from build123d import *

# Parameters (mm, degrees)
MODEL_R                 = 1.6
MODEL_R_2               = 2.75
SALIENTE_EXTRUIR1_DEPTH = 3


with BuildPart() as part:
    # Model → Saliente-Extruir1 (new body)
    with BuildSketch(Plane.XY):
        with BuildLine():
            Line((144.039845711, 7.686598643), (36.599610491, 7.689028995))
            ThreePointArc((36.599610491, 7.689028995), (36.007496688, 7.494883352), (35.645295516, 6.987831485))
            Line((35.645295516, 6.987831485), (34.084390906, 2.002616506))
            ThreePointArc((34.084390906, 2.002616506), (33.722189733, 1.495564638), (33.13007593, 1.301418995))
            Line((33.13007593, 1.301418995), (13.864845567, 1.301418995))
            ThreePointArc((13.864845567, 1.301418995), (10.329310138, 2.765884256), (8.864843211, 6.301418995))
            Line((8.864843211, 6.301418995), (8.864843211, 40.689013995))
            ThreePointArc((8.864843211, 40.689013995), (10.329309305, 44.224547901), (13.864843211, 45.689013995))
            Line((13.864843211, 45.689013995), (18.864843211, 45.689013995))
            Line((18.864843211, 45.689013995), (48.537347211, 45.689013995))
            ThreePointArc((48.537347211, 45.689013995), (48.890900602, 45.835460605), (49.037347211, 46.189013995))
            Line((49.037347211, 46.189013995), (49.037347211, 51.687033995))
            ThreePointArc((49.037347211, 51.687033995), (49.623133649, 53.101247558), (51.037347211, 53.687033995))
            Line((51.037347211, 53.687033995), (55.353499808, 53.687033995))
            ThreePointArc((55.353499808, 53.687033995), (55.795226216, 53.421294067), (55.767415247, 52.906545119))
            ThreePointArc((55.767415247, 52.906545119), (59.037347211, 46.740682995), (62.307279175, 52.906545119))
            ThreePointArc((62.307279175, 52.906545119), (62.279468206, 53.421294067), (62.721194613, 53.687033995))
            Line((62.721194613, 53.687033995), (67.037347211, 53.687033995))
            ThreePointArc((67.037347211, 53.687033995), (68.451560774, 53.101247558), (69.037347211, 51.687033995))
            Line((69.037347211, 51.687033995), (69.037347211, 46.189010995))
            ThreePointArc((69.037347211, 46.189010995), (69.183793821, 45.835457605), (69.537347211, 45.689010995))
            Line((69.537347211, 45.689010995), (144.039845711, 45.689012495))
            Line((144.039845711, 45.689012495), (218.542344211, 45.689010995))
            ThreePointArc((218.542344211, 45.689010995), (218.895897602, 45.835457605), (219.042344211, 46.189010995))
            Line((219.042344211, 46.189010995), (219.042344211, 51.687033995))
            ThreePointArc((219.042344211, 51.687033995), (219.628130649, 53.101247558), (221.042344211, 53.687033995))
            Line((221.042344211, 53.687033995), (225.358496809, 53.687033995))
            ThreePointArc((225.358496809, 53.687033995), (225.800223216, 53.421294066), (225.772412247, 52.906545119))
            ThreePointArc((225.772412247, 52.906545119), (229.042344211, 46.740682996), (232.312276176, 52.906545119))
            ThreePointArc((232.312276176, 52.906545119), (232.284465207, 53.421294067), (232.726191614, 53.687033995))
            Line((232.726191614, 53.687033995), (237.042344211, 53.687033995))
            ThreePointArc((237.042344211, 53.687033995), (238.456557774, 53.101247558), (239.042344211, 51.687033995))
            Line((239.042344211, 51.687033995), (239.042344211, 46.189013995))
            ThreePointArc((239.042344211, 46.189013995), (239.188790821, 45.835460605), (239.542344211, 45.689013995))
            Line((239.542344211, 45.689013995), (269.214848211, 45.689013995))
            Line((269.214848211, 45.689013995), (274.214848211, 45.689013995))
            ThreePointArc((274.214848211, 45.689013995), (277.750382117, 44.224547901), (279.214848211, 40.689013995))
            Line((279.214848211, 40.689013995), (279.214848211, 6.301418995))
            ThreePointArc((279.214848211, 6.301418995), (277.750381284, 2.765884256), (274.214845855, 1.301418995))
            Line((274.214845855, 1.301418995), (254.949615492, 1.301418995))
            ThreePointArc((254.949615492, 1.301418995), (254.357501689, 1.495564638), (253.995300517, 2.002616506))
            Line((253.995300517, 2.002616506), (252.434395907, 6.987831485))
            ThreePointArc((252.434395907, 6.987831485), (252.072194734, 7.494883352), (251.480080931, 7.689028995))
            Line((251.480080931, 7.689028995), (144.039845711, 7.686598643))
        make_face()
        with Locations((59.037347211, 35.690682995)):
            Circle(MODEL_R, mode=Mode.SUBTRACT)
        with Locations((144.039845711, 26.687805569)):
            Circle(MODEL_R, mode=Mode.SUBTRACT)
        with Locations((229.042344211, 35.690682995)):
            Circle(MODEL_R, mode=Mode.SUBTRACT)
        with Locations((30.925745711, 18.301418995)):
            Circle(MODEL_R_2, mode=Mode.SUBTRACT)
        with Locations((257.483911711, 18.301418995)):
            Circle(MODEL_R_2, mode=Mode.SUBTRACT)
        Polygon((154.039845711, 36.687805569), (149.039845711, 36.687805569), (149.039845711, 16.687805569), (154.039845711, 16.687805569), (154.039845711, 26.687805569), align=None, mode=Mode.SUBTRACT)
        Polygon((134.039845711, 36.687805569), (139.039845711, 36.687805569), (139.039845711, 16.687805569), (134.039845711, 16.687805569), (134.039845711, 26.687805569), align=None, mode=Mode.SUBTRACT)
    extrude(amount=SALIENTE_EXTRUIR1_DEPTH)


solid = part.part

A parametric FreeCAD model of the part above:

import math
import FreeCAD as App
import Part
import Sketcher

V = App.Vector

doc = App.newDocument("Part")
body = doc.addObject("PartDesign::Body", "Body")

sketch1 = body.newObject("Sketcher::SketchObject", "Sketch")
sketch1.AttachmentSupport = (doc.getObject("XY_Plane"), [""])
sketch1.MapMode = "FlatFace"
sketch1.addGeometry(Part.LineSegment(V(36.59961, 7.689029, 0), V(144.039846, 7.686599, 0)), False)
sketch1.addGeometry(Part.LineSegment(V(144.039846, 7.686599, 0), V(251.480081, 7.689029, 0)), False)
sketch1.addGeometry(Part.ArcOfCircle(Part.Circle(V(251.480081, 6.689029, 0), V(0, 0, 1), 1), math.radians(17.385692), math.radians(90)), False)
sketch1.addGeometry(Part.LineSegment(V(252.434396, 6.987831, 0), V(253.995301, 2.002617, 0)), False)
sketch1.addGeometry(Part.ArcOfCircle(Part.Circle(V(254.949615, 2.301419, 0), V(0, 0, 1), 1), math.radians(-162.614308), math.radians(-90)), False)
sketch1.addGeometry(Part.LineSegment(V(254.949615, 1.301419, 0), V(274.214846, 1.301419, 0)), False)
sketch1.addGeometry(Part.ArcOfCircle(Part.Circle(V(274.214848, 6.301419, 0), V(0, 0, 1), 5), math.radians(-90.000027), math.radians(0)), False)
sketch1.addGeometry(Part.LineSegment(V(279.214848, 6.301419, 0), V(279.214848, 40.689014, 0)), False)
sketch1.addGeometry(Part.ArcOfCircle(Part.Circle(V(274.214848, 40.689014, 0), V(0, 0, 1), 5), math.radians(0), math.radians(90)), False)
sketch1.addGeometry(Part.LineSegment(V(274.214848, 45.689014, 0), V(239.542344, 45.689014, 0)), False)
sketch1.addGeometry(Part.ArcOfCircle(Part.Circle(V(239.542344, 46.189014, 0), V(0, 0, 1), 0.5), math.radians(-180), math.radians(-90)), False)
sketch1.addGeometry(Part.LineSegment(V(239.042344, 46.189014, 0), V(239.042344, 51.687034, 0)), False)
sketch1.addGeometry(Part.ArcOfCircle(Part.Circle(V(237.042344, 51.687034, 0), V(0, 0, 1), 2), math.radians(0), math.radians(90)), False)
sketch1.addGeometry(Part.LineSegment(V(237.042344, 53.687034, 0), V(232.726192, 53.687034, 0)), False)
sketch1.addGeometry(Part.ArcOfCircle(Part.Circle(V(232.726192, 53.187034, 0), V(0, 0, 1), 0.5), math.radians(90), math.radians(214.123443)), False)
sketch1.addGeometry(Part.ArcOfCircle(Part.Circle(V(229.042344, 50.690683, 0), V(0, 0, 1), 3.95), math.radians(145.876557), math.radians(394.123443)), False)
sketch1.addGeometry(Part.ArcOfCircle(Part.Circle(V(225.358497, 53.187034, 0), V(0, 0, 1), 0.5), math.radians(-34.123443), math.radians(90)), False)
sketch1.addGeometry(Part.LineSegment(V(225.358497, 53.687034, 0), V(221.042344, 53.687034, 0)), False)
sketch1.addGeometry(Part.ArcOfCircle(Part.Circle(V(221.042344, 51.687034, 0), V(0, 0, 1), 2), math.radians(90), math.radians(180)), False)
sketch1.addGeometry(Part.LineSegment(V(219.042344, 51.687034, 0), V(219.042344, 46.189011, 0)), False)
sketch1.addGeometry(Part.ArcOfCircle(Part.Circle(V(218.542344, 46.189011, 0), V(0, 0, 1), 0.5), math.radians(-90), math.radians(0)), False)
sketch1.addGeometry(Part.LineSegment(V(218.542344, 45.689011, 0), V(144.039846, 45.689012, 0)), False)
sketch1.addGeometry(Part.LineSegment(V(144.039846, 45.689012, 0), V(69.537347, 45.689011, 0)), False)
sketch1.addGeometry(Part.ArcOfCircle(Part.Circle(V(69.537347, 46.189011, 0), V(0, 0, 1), 0.5), math.radians(-180), math.radians(-90)), False)
sketch1.addGeometry(Part.LineSegment(V(69.037347, 46.189011, 0), V(69.037347, 51.687034, 0)), False)
sketch1.addGeometry(Part.ArcOfCircle(Part.Circle(V(67.037347, 51.687034, 0), V(0, 0, 1), 2), math.radians(0), math.radians(90)), False)
sketch1.addGeometry(Part.LineSegment(V(67.037347, 53.687034, 0), V(62.721195, 53.687034, 0)), False)
sketch1.addGeometry(Part.ArcOfCircle(Part.Circle(V(62.721195, 53.187034, 0), V(0, 0, 1), 0.5), math.radians(90), math.radians(214.123443)), False)
sketch1.addGeometry(Part.ArcOfCircle(Part.Circle(V(59.037347, 50.690683, 0), V(0, 0, 1), 3.95), math.radians(145.876557), math.radians(394.123443)), False)
sketch1.addGeometry(Part.ArcOfCircle(Part.Circle(V(55.3535, 53.187034, 0), V(0, 0, 1), 0.5), math.radians(-34.123443), math.radians(90)), False)
sketch1.addGeometry(Part.LineSegment(V(55.3535, 53.687034, 0), V(51.037347, 53.687034, 0)), False)
sketch1.addGeometry(Part.ArcOfCircle(Part.Circle(V(51.037347, 51.687034, 0), V(0, 0, 1), 2), math.radians(90), math.radians(180)), False)
sketch1.addGeometry(Part.LineSegment(V(49.037347, 51.687034, 0), V(49.037347, 46.189014, 0)), False)
sketch1.addGeometry(Part.ArcOfCircle(Part.Circle(V(48.537347, 46.189014, 0), V(0, 0, 1), 0.5), math.radians(-90), math.radians(0)), False)
sketch1.addGeometry(Part.LineSegment(V(48.537347, 45.689014, 0), V(13.864843, 45.689014, 0)), False)
sketch1.addGeometry(Part.ArcOfCircle(Part.Circle(V(13.864843, 40.689014, 0), V(0, 0, 1), 5), math.radians(90), math.radians(180)), False)
sketch1.addGeometry(Part.LineSegment(V(8.864843, 40.689014, 0), V(8.864843, 6.301419, 0)), False)
sketch1.addGeometry(Part.ArcOfCircle(Part.Circle(V(13.864843, 6.301419, 0), V(0, 0, 1), 5), math.radians(180), math.radians(270.000027)), False)
sketch1.addGeometry(Part.LineSegment(V(13.864846, 1.301419, 0), V(33.130076, 1.301419, 0)), False)
sketch1.addGeometry(Part.ArcOfCircle(Part.Circle(V(33.130076, 2.301419, 0), V(0, 0, 1), 1), math.radians(-90), math.radians(-17.385692)), False)
sketch1.addGeometry(Part.LineSegment(V(34.084391, 2.002617, 0), V(35.645296, 6.987831, 0)), False)
sketch1.addGeometry(Part.ArcOfCircle(Part.Circle(V(36.59961, 6.689029, 0), V(0, 0, 1), 1), math.radians(90), math.radians(162.614308)), False)
sketch1.addGeometry(Part.Circle(V(257.483912, 18.301419, 0), V(0, 0, 1), 2.75), False)
sketch1.addGeometry(Part.Circle(V(30.925746, 18.301419, 0), V(0, 0, 1), 2.75), False)
sketch1.addGeometry(Part.LineSegment(V(154.039846, 36.687806, 0), V(154.039846, 16.687806, 0)), False)
sketch1.addGeometry(Part.LineSegment(V(154.039846, 16.687806, 0), V(149.039846, 16.687806, 0)), False)
sketch1.addGeometry(Part.LineSegment(V(149.039846, 16.687806, 0), V(149.039846, 36.687806, 0)), False)
sketch1.addGeometry(Part.LineSegment(V(149.039846, 36.687806, 0), V(154.039846, 36.687806, 0)), False)
sketch1.addGeometry(Part.Circle(V(229.042344, 35.690683, 0), V(0, 0, 1), 1.6), False)
sketch1.addGeometry(Part.Circle(V(144.039846, 26.687806, 0), V(0, 0, 1), 1.6), False)
sketch1.addGeometry(Part.LineSegment(V(134.039846, 36.687806, 0), V(139.039846, 36.687806, 0)), False)
sketch1.addGeometry(Part.LineSegment(V(139.039846, 36.687806, 0), V(139.039846, 16.687806, 0)), False)
sketch1.addGeometry(Part.LineSegment(V(139.039846, 16.687806, 0), V(134.039846, 16.687806, 0)), False)
sketch1.addGeometry(Part.LineSegment(V(134.039846, 16.687806, 0), V(134.039846, 36.687806, 0)), False)
sketch1.addGeometry(Part.Circle(V(59.037347, 35.690683, 0), V(0, 0, 1), 1.6), False)
sketch1.addConstraint(Sketcher.Constraint("Coincident", 0, 2, 1, 1))
sketch1.addConstraint(Sketcher.Constraint("Coincident", 1, 2, 2, 2))
sketch1.addConstraint(Sketcher.Constraint("Tangent", 2, 1, 3, 1))
sketch1.addConstraint(Sketcher.Constraint("Tangent", 3, 2, 4, 1))
sketch1.addConstraint(Sketcher.Constraint("Tangent", 4, 2, 5, 1))
sketch1.addConstraint(Sketcher.Constraint("Tangent", 5, 2, 6, 1))
sketch1.addConstraint(Sketcher.Constraint("Tangent", 6, 2, 7, 1))
sketch1.addConstraint(Sketcher.Constraint("Tangent", 7, 2, 8, 1))
sketch1.addConstraint(Sketcher.Constraint("Tangent", 8, 2, 9, 1))
sketch1.addConstraint(Sketcher.Constraint("Tangent", 9, 2, 10, 2))
sketch1.addConstraint(Sketcher.Constraint("Tangent", 10, 1, 11, 1))
sketch1.addConstraint(Sketcher.Constraint("Tangent", 11, 2, 12, 1))
sketch1.addConstraint(Sketcher.Constraint("Tangent", 12, 2, 13, 1))
sketch1.addConstraint(Sketcher.Constraint("Tangent", 13, 2, 14, 1))
sketch1.addConstraint(Sketcher.Constraint("Tangent", 14, 2, 15, 2))
sketch1.addConstraint(Sketcher.Constraint("Tangent", 15, 1, 16, 1))
sketch1.addConstraint(Sketcher.Constraint("Tangent", 16, 2, 17, 1))
sketch1.addConstraint(Sketcher.Constraint("Tangent", 17, 2, 18, 1))
sketch1.addConstraint(Sketcher.Constraint("Tangent", 18, 2, 19, 1))
sketch1.addConstraint(Sketcher.Constraint("Tangent", 19, 2, 20, 2))
sketch1.addConstraint(Sketcher.Constraint("Tangent", 20, 1, 21, 1))
sketch1.addConstraint(Sketcher.Constraint("Coincident", 21, 2, 22, 1))
sketch1.addConstraint(Sketcher.Constraint("Tangent", 22, 2, 23, 2))
sketch1.addConstraint(Sketcher.Constraint("Tangent", 23, 1, 24, 1))
sketch1.addConstraint(Sketcher.Constraint("Tangent", 24, 2, 25, 1))
sketch1.addConstraint(Sketcher.Constraint("Tangent", 25, 2, 26, 1))
sketch1.addConstraint(Sketcher.Constraint("Tangent", 26, 2, 27, 1))
sketch1.addConstraint(Sketcher.Constraint("Tangent", 27, 2, 28, 2))
sketch1.addConstraint(Sketcher.Constraint("Tangent", 28, 1, 29, 1))
sketch1.addConstraint(Sketcher.Constraint("Tangent", 29, 2, 30, 1))
sketch1.addConstraint(Sketcher.Constraint("Tangent", 30, 2, 31, 1))
sketch1.addConstraint(Sketcher.Constraint("Tangent", 31, 2, 32, 1))
sketch1.addConstraint(Sketcher.Constraint("Tangent", 32, 2, 33, 2))
sketch1.addConstraint(Sketcher.Constraint("Tangent", 33, 1, 34, 1))
sketch1.addConstraint(Sketcher.Constraint("Tangent", 34, 2, 35, 1))
sketch1.addConstraint(Sketcher.Constraint("Tangent", 35, 2, 36, 1))
sketch1.addConstraint(Sketcher.Constraint("Tangent", 36, 2, 37, 1))
sketch1.addConstraint(Sketcher.Constraint("Tangent", 37, 2, 38, 1))
sketch1.addConstraint(Sketcher.Constraint("Tangent", 38, 2, 39, 1))
sketch1.addConstraint(Sketcher.Constraint("Tangent", 39, 2, 40, 1))
sketch1.addConstraint(Sketcher.Constraint("Tangent", 40, 2, 41, 2))
sketch1.addConstraint(Sketcher.Constraint("Coincident", 41, 1, 0, 1))
sketch1.addConstraint(Sketcher.Constraint("Coincident", 44, 2, 45, 1))
sketch1.addConstraint(Sketcher.Constraint("Coincident", 45, 2, 46, 1))
sketch1.addConstraint(Sketcher.Constraint("Coincident", 46, 2, 47, 1))
sketch1.addConstraint(Sketcher.Constraint("Coincident", 47, 2, 44, 1))
sketch1.addConstraint(Sketcher.Constraint("Coincident", 50, 2, 51, 1))
sketch1.addConstraint(Sketcher.Constraint("Coincident", 51, 2, 52, 1))
sketch1.addConstraint(Sketcher.Constraint("Coincident", 52, 2, 53, 1))
sketch1.addConstraint(Sketcher.Constraint("Coincident", 53, 2, 50, 1))
sketch1.addConstraint(Sketcher.Constraint("Horizontal", 5))
sketch1.addConstraint(Sketcher.Constraint("Vertical", 7))
sketch1.addConstraint(Sketcher.Constraint("Horizontal", 9))
sketch1.addConstraint(Sketcher.Constraint("Vertical", 11))
sketch1.addConstraint(Sketcher.Constraint("Horizontal", 13))
sketch1.addConstraint(Sketcher.Constraint("Horizontal", 17))
sketch1.addConstraint(Sketcher.Constraint("Vertical", 19))
sketch1.addConstraint(Sketcher.Constraint("Horizontal", 21))
sketch1.addConstraint(Sketcher.Constraint("Horizontal", 22))
sketch1.addConstraint(Sketcher.Constraint("Vertical", 24))
sketch1.addConstraint(Sketcher.Constraint("Horizontal", 26))
sketch1.addConstraint(Sketcher.Constraint("Horizontal", 30))
sketch1.addConstraint(Sketcher.Constraint("Vertical", 32))
sketch1.addConstraint(Sketcher.Constraint("Horizontal", 34))
sketch1.addConstraint(Sketcher.Constraint("Vertical", 36))
sketch1.addConstraint(Sketcher.Constraint("Horizontal", 38))
sketch1.addConstraint(Sketcher.Constraint("Vertical", 44))
sketch1.addConstraint(Sketcher.Constraint("Horizontal", 45))
sketch1.addConstraint(Sketcher.Constraint("Vertical", 46))
sketch1.addConstraint(Sketcher.Constraint("Horizontal", 47))
sketch1.addConstraint(Sketcher.Constraint("Horizontal", 50))
sketch1.addConstraint(Sketcher.Constraint("Vertical", 51))
sketch1.addConstraint(Sketcher.Constraint("Horizontal", 52))
sketch1.addConstraint(Sketcher.Constraint("Vertical", 53))
sketch1.addConstraint(Sketcher.Constraint("Equal", 2, 4))
sketch1.addConstraint(Sketcher.Constraint("Equal", 6, 8))
sketch1.addConstraint(Sketcher.Constraint("Equal", 10, 14))
sketch1.addConstraint(Sketcher.Constraint("Equal", 14, 16))
sketch1.addConstraint(Sketcher.Constraint("Equal", 12, 18))
sketch1.addConstraint(Sketcher.Constraint("Equal", 16, 20))
sketch1.addConstraint(Sketcher.Constraint("Equal", 20, 23))
sketch1.addConstraint(Sketcher.Constraint("Equal", 18, 25))
sketch1.addConstraint(Sketcher.Constraint("Equal", 23, 27))
sketch1.addConstraint(Sketcher.Constraint("Equal", 15, 28))
sketch1.addConstraint(Sketcher.Constraint("Equal", 27, 29))
sketch1.addConstraint(Sketcher.Constraint("Equal", 25, 31))
sketch1.addConstraint(Sketcher.Constraint("Equal", 29, 33))
sketch1.addConstraint(Sketcher.Constraint("Equal", 8, 35))
sketch1.addConstraint(Sketcher.Constraint("Equal", 35, 37))
sketch1.addConstraint(Sketcher.Constraint("Equal", 4, 39))
sketch1.addConstraint(Sketcher.Constraint("Equal", 39, 41))
sketch1.addConstraint(Sketcher.Constraint("Equal", 42, 43))
sketch1.addConstraint(Sketcher.Constraint("Equal", 48, 49))
sketch1.addConstraint(Sketcher.Constraint("Equal", 49, 54))
sketch1.addConstraint(Sketcher.Constraint("Horizontal", 14, 3, 16, 3))
sketch1.addConstraint(Sketcher.Constraint("Horizontal", 18, 3, 25, 3))
sketch1.addConstraint(Sketcher.Constraint("Horizontal", 15, 3, 28, 3))
sketch1.addConstraint(Sketcher.Constraint("Horizontal", 27, 3, 29, 3))
sketch1.addConstraint(Sketcher.Constraint("Horizontal", 10, 3, 33, 3))
sketch1.addConstraint(Sketcher.Constraint("Horizontal", 6, 3, 37, 3))
sketch1.addConstraint(Sketcher.Constraint("Horizontal", 2, 3, 41, 3))
sketch1.addConstraint(Sketcher.Constraint("Horizontal", 42, 3, 43, 3))
sketch1.addConstraint(Sketcher.Constraint("Horizontal", 48, 3, 54, 3))
sketch1.addConstraint(Sketcher.Constraint("Horizontal", 21, 2, 33, 1))
sketch1.addConstraint(Sketcher.Constraint("Horizontal", 3, 2, 39, 2))
sketch1.addConstraint(Sketcher.Constraint("Horizontal", 47, 2, 50, 2))
sketch1.addConstraint(Sketcher.Constraint("Horizontal", 45, 2, 51, 2))
sketch1.addConstraint(Sketcher.Constraint("Vertical", 15, 3, 48, 3))
sketch1.addConstraint(Sketcher.Constraint("Vertical", 28, 3, 54, 3))
sketch1.addConstraint(Sketcher.Constraint("Vertical", 49, 3, 0, 2))
sketch1.addConstraint(Sketcher.Constraint("Vertical", 2, 3, 1, 2))
sketch1.addConstraint(Sketcher.Constraint("Vertical", 0, 2, 21, 2))
sketch1.addConstraint(Sketcher.Constraint("Equal", 13, 17))
sketch1.addConstraint(Sketcher.Constraint("Equal", 21, 22))
sketch1.addConstraint(Sketcher.Constraint("Equal", 17, 26))
sketch1.addConstraint(Sketcher.Constraint("Equal", 26, 30))
sketch1.addConstraint(Sketcher.Constraint("Equal", 9, 34))
sketch1.addConstraint(Sketcher.Constraint("Equal", 5, 38))
sketch1.addConstraint(Sketcher.Constraint("Equal", 47, 50))
sketch1.addConstraint(Sketcher.Constraint("Equal", 0, 1))
sketch1.addConstraint(Sketcher.Constraint("Radius", 2, 1.0))
sketch1.addConstraint(Sketcher.Constraint("Radius", 6, 5.0))
sketch1.addConstraint(Sketcher.Constraint("Radius", 12, 2.0))
sketch1.addConstraint(Sketcher.Constraint("Diameter", 42, 5.5))
sketch1.addConstraint(Sketcher.Constraint("Diameter", 48, 3.2))
sketch1.addConstraint(Sketcher.Constraint("Radius", 10, 0.5))
sketch1.addConstraint(Sketcher.Constraint("DistanceX", 45, 2, 45, 1, 5.0))
sketch1.addConstraint(Sketcher.Constraint("DistanceY", 44, 2, 44, 1, 20.0))
sketch1.addConstraint(Sketcher.Constraint("Radius", 15, 3.95))
sketch1.addConstraint(Sketcher.Constraint("DistanceX", 21, 2, 21, 1, 74.502499))
sketch1.addConstraint(Sketcher.Constraint("DistanceX", 5, 1, 5, 2, 19.26523))
sketch1.addConstraint(Sketcher.Constraint("DistanceY", 11, 1, 11, 2, 5.49802))
sketch1.addConstraint(Sketcher.Constraint("DistanceX", -1, 1, 29, 3, 55.3535))
sketch1.addConstraint(Sketcher.Constraint("DistanceY", -1, 1, 0, 2, 7.686599))
sketch1.addConstraint(Sketcher.Constraint("DistanceX", -1, 1, 3, 2, 253.995301))
sketch1.addConstraint(Sketcher.Constraint("DistanceX", 9, 2, 9, 1, 34.672504))
sketch1.addConstraint(Sketcher.Constraint("DistanceX", 13, 2, 13, 1, 4.316153))
sketch1.addConstraint(Sketcher.Constraint("DistanceY", 7, 1, 7, 2, 34.387595))
sketch1.addConstraint(Sketcher.Constraint("DistanceX", -1, 1, 2, 3, 251.480081))
sketch1.addConstraint(Sketcher.Constraint("DistanceY", -1, 1, 2, 3, 6.689029))
sketch1.addConstraint(Sketcher.Constraint("DistanceY", -1, 1, 4, 3, 2.301419))
sketch1.addConstraint(Sketcher.Constraint("DistanceX", -1, 1, 42, 3, 257.483912))
sketch1.addConstraint(Sketcher.Constraint("DistanceY", -1, 1, 42, 3, 18.301419))
sketch1.addConstraint(Sketcher.Constraint("DistanceX", -1, 1, 43, 3, 30.925746))
sketch1.addConstraint(Sketcher.Constraint("DistanceY", -1, 1, 48, 3, 35.690683))
sketch1.addConstraint(Sketcher.Constraint("DistanceY", -1, 1, 49, 3, 26.687806))
sketch1.addConstraint(Sketcher.Constraint("DistanceX", -1, 1, 44, 2, 154.039846))
sketch1.addConstraint(Sketcher.Constraint("DistanceY", -1, 1, 44, 2, 16.687806))
sketch1.addConstraint(Sketcher.Constraint("DistanceX", -1, 1, 50, 2, 139.039846))
pad1 = body.newObject("PartDesign::Pad", "Pad")
pad1.Profile = sketch1
pad1.Length = 3

doc.recompute()
